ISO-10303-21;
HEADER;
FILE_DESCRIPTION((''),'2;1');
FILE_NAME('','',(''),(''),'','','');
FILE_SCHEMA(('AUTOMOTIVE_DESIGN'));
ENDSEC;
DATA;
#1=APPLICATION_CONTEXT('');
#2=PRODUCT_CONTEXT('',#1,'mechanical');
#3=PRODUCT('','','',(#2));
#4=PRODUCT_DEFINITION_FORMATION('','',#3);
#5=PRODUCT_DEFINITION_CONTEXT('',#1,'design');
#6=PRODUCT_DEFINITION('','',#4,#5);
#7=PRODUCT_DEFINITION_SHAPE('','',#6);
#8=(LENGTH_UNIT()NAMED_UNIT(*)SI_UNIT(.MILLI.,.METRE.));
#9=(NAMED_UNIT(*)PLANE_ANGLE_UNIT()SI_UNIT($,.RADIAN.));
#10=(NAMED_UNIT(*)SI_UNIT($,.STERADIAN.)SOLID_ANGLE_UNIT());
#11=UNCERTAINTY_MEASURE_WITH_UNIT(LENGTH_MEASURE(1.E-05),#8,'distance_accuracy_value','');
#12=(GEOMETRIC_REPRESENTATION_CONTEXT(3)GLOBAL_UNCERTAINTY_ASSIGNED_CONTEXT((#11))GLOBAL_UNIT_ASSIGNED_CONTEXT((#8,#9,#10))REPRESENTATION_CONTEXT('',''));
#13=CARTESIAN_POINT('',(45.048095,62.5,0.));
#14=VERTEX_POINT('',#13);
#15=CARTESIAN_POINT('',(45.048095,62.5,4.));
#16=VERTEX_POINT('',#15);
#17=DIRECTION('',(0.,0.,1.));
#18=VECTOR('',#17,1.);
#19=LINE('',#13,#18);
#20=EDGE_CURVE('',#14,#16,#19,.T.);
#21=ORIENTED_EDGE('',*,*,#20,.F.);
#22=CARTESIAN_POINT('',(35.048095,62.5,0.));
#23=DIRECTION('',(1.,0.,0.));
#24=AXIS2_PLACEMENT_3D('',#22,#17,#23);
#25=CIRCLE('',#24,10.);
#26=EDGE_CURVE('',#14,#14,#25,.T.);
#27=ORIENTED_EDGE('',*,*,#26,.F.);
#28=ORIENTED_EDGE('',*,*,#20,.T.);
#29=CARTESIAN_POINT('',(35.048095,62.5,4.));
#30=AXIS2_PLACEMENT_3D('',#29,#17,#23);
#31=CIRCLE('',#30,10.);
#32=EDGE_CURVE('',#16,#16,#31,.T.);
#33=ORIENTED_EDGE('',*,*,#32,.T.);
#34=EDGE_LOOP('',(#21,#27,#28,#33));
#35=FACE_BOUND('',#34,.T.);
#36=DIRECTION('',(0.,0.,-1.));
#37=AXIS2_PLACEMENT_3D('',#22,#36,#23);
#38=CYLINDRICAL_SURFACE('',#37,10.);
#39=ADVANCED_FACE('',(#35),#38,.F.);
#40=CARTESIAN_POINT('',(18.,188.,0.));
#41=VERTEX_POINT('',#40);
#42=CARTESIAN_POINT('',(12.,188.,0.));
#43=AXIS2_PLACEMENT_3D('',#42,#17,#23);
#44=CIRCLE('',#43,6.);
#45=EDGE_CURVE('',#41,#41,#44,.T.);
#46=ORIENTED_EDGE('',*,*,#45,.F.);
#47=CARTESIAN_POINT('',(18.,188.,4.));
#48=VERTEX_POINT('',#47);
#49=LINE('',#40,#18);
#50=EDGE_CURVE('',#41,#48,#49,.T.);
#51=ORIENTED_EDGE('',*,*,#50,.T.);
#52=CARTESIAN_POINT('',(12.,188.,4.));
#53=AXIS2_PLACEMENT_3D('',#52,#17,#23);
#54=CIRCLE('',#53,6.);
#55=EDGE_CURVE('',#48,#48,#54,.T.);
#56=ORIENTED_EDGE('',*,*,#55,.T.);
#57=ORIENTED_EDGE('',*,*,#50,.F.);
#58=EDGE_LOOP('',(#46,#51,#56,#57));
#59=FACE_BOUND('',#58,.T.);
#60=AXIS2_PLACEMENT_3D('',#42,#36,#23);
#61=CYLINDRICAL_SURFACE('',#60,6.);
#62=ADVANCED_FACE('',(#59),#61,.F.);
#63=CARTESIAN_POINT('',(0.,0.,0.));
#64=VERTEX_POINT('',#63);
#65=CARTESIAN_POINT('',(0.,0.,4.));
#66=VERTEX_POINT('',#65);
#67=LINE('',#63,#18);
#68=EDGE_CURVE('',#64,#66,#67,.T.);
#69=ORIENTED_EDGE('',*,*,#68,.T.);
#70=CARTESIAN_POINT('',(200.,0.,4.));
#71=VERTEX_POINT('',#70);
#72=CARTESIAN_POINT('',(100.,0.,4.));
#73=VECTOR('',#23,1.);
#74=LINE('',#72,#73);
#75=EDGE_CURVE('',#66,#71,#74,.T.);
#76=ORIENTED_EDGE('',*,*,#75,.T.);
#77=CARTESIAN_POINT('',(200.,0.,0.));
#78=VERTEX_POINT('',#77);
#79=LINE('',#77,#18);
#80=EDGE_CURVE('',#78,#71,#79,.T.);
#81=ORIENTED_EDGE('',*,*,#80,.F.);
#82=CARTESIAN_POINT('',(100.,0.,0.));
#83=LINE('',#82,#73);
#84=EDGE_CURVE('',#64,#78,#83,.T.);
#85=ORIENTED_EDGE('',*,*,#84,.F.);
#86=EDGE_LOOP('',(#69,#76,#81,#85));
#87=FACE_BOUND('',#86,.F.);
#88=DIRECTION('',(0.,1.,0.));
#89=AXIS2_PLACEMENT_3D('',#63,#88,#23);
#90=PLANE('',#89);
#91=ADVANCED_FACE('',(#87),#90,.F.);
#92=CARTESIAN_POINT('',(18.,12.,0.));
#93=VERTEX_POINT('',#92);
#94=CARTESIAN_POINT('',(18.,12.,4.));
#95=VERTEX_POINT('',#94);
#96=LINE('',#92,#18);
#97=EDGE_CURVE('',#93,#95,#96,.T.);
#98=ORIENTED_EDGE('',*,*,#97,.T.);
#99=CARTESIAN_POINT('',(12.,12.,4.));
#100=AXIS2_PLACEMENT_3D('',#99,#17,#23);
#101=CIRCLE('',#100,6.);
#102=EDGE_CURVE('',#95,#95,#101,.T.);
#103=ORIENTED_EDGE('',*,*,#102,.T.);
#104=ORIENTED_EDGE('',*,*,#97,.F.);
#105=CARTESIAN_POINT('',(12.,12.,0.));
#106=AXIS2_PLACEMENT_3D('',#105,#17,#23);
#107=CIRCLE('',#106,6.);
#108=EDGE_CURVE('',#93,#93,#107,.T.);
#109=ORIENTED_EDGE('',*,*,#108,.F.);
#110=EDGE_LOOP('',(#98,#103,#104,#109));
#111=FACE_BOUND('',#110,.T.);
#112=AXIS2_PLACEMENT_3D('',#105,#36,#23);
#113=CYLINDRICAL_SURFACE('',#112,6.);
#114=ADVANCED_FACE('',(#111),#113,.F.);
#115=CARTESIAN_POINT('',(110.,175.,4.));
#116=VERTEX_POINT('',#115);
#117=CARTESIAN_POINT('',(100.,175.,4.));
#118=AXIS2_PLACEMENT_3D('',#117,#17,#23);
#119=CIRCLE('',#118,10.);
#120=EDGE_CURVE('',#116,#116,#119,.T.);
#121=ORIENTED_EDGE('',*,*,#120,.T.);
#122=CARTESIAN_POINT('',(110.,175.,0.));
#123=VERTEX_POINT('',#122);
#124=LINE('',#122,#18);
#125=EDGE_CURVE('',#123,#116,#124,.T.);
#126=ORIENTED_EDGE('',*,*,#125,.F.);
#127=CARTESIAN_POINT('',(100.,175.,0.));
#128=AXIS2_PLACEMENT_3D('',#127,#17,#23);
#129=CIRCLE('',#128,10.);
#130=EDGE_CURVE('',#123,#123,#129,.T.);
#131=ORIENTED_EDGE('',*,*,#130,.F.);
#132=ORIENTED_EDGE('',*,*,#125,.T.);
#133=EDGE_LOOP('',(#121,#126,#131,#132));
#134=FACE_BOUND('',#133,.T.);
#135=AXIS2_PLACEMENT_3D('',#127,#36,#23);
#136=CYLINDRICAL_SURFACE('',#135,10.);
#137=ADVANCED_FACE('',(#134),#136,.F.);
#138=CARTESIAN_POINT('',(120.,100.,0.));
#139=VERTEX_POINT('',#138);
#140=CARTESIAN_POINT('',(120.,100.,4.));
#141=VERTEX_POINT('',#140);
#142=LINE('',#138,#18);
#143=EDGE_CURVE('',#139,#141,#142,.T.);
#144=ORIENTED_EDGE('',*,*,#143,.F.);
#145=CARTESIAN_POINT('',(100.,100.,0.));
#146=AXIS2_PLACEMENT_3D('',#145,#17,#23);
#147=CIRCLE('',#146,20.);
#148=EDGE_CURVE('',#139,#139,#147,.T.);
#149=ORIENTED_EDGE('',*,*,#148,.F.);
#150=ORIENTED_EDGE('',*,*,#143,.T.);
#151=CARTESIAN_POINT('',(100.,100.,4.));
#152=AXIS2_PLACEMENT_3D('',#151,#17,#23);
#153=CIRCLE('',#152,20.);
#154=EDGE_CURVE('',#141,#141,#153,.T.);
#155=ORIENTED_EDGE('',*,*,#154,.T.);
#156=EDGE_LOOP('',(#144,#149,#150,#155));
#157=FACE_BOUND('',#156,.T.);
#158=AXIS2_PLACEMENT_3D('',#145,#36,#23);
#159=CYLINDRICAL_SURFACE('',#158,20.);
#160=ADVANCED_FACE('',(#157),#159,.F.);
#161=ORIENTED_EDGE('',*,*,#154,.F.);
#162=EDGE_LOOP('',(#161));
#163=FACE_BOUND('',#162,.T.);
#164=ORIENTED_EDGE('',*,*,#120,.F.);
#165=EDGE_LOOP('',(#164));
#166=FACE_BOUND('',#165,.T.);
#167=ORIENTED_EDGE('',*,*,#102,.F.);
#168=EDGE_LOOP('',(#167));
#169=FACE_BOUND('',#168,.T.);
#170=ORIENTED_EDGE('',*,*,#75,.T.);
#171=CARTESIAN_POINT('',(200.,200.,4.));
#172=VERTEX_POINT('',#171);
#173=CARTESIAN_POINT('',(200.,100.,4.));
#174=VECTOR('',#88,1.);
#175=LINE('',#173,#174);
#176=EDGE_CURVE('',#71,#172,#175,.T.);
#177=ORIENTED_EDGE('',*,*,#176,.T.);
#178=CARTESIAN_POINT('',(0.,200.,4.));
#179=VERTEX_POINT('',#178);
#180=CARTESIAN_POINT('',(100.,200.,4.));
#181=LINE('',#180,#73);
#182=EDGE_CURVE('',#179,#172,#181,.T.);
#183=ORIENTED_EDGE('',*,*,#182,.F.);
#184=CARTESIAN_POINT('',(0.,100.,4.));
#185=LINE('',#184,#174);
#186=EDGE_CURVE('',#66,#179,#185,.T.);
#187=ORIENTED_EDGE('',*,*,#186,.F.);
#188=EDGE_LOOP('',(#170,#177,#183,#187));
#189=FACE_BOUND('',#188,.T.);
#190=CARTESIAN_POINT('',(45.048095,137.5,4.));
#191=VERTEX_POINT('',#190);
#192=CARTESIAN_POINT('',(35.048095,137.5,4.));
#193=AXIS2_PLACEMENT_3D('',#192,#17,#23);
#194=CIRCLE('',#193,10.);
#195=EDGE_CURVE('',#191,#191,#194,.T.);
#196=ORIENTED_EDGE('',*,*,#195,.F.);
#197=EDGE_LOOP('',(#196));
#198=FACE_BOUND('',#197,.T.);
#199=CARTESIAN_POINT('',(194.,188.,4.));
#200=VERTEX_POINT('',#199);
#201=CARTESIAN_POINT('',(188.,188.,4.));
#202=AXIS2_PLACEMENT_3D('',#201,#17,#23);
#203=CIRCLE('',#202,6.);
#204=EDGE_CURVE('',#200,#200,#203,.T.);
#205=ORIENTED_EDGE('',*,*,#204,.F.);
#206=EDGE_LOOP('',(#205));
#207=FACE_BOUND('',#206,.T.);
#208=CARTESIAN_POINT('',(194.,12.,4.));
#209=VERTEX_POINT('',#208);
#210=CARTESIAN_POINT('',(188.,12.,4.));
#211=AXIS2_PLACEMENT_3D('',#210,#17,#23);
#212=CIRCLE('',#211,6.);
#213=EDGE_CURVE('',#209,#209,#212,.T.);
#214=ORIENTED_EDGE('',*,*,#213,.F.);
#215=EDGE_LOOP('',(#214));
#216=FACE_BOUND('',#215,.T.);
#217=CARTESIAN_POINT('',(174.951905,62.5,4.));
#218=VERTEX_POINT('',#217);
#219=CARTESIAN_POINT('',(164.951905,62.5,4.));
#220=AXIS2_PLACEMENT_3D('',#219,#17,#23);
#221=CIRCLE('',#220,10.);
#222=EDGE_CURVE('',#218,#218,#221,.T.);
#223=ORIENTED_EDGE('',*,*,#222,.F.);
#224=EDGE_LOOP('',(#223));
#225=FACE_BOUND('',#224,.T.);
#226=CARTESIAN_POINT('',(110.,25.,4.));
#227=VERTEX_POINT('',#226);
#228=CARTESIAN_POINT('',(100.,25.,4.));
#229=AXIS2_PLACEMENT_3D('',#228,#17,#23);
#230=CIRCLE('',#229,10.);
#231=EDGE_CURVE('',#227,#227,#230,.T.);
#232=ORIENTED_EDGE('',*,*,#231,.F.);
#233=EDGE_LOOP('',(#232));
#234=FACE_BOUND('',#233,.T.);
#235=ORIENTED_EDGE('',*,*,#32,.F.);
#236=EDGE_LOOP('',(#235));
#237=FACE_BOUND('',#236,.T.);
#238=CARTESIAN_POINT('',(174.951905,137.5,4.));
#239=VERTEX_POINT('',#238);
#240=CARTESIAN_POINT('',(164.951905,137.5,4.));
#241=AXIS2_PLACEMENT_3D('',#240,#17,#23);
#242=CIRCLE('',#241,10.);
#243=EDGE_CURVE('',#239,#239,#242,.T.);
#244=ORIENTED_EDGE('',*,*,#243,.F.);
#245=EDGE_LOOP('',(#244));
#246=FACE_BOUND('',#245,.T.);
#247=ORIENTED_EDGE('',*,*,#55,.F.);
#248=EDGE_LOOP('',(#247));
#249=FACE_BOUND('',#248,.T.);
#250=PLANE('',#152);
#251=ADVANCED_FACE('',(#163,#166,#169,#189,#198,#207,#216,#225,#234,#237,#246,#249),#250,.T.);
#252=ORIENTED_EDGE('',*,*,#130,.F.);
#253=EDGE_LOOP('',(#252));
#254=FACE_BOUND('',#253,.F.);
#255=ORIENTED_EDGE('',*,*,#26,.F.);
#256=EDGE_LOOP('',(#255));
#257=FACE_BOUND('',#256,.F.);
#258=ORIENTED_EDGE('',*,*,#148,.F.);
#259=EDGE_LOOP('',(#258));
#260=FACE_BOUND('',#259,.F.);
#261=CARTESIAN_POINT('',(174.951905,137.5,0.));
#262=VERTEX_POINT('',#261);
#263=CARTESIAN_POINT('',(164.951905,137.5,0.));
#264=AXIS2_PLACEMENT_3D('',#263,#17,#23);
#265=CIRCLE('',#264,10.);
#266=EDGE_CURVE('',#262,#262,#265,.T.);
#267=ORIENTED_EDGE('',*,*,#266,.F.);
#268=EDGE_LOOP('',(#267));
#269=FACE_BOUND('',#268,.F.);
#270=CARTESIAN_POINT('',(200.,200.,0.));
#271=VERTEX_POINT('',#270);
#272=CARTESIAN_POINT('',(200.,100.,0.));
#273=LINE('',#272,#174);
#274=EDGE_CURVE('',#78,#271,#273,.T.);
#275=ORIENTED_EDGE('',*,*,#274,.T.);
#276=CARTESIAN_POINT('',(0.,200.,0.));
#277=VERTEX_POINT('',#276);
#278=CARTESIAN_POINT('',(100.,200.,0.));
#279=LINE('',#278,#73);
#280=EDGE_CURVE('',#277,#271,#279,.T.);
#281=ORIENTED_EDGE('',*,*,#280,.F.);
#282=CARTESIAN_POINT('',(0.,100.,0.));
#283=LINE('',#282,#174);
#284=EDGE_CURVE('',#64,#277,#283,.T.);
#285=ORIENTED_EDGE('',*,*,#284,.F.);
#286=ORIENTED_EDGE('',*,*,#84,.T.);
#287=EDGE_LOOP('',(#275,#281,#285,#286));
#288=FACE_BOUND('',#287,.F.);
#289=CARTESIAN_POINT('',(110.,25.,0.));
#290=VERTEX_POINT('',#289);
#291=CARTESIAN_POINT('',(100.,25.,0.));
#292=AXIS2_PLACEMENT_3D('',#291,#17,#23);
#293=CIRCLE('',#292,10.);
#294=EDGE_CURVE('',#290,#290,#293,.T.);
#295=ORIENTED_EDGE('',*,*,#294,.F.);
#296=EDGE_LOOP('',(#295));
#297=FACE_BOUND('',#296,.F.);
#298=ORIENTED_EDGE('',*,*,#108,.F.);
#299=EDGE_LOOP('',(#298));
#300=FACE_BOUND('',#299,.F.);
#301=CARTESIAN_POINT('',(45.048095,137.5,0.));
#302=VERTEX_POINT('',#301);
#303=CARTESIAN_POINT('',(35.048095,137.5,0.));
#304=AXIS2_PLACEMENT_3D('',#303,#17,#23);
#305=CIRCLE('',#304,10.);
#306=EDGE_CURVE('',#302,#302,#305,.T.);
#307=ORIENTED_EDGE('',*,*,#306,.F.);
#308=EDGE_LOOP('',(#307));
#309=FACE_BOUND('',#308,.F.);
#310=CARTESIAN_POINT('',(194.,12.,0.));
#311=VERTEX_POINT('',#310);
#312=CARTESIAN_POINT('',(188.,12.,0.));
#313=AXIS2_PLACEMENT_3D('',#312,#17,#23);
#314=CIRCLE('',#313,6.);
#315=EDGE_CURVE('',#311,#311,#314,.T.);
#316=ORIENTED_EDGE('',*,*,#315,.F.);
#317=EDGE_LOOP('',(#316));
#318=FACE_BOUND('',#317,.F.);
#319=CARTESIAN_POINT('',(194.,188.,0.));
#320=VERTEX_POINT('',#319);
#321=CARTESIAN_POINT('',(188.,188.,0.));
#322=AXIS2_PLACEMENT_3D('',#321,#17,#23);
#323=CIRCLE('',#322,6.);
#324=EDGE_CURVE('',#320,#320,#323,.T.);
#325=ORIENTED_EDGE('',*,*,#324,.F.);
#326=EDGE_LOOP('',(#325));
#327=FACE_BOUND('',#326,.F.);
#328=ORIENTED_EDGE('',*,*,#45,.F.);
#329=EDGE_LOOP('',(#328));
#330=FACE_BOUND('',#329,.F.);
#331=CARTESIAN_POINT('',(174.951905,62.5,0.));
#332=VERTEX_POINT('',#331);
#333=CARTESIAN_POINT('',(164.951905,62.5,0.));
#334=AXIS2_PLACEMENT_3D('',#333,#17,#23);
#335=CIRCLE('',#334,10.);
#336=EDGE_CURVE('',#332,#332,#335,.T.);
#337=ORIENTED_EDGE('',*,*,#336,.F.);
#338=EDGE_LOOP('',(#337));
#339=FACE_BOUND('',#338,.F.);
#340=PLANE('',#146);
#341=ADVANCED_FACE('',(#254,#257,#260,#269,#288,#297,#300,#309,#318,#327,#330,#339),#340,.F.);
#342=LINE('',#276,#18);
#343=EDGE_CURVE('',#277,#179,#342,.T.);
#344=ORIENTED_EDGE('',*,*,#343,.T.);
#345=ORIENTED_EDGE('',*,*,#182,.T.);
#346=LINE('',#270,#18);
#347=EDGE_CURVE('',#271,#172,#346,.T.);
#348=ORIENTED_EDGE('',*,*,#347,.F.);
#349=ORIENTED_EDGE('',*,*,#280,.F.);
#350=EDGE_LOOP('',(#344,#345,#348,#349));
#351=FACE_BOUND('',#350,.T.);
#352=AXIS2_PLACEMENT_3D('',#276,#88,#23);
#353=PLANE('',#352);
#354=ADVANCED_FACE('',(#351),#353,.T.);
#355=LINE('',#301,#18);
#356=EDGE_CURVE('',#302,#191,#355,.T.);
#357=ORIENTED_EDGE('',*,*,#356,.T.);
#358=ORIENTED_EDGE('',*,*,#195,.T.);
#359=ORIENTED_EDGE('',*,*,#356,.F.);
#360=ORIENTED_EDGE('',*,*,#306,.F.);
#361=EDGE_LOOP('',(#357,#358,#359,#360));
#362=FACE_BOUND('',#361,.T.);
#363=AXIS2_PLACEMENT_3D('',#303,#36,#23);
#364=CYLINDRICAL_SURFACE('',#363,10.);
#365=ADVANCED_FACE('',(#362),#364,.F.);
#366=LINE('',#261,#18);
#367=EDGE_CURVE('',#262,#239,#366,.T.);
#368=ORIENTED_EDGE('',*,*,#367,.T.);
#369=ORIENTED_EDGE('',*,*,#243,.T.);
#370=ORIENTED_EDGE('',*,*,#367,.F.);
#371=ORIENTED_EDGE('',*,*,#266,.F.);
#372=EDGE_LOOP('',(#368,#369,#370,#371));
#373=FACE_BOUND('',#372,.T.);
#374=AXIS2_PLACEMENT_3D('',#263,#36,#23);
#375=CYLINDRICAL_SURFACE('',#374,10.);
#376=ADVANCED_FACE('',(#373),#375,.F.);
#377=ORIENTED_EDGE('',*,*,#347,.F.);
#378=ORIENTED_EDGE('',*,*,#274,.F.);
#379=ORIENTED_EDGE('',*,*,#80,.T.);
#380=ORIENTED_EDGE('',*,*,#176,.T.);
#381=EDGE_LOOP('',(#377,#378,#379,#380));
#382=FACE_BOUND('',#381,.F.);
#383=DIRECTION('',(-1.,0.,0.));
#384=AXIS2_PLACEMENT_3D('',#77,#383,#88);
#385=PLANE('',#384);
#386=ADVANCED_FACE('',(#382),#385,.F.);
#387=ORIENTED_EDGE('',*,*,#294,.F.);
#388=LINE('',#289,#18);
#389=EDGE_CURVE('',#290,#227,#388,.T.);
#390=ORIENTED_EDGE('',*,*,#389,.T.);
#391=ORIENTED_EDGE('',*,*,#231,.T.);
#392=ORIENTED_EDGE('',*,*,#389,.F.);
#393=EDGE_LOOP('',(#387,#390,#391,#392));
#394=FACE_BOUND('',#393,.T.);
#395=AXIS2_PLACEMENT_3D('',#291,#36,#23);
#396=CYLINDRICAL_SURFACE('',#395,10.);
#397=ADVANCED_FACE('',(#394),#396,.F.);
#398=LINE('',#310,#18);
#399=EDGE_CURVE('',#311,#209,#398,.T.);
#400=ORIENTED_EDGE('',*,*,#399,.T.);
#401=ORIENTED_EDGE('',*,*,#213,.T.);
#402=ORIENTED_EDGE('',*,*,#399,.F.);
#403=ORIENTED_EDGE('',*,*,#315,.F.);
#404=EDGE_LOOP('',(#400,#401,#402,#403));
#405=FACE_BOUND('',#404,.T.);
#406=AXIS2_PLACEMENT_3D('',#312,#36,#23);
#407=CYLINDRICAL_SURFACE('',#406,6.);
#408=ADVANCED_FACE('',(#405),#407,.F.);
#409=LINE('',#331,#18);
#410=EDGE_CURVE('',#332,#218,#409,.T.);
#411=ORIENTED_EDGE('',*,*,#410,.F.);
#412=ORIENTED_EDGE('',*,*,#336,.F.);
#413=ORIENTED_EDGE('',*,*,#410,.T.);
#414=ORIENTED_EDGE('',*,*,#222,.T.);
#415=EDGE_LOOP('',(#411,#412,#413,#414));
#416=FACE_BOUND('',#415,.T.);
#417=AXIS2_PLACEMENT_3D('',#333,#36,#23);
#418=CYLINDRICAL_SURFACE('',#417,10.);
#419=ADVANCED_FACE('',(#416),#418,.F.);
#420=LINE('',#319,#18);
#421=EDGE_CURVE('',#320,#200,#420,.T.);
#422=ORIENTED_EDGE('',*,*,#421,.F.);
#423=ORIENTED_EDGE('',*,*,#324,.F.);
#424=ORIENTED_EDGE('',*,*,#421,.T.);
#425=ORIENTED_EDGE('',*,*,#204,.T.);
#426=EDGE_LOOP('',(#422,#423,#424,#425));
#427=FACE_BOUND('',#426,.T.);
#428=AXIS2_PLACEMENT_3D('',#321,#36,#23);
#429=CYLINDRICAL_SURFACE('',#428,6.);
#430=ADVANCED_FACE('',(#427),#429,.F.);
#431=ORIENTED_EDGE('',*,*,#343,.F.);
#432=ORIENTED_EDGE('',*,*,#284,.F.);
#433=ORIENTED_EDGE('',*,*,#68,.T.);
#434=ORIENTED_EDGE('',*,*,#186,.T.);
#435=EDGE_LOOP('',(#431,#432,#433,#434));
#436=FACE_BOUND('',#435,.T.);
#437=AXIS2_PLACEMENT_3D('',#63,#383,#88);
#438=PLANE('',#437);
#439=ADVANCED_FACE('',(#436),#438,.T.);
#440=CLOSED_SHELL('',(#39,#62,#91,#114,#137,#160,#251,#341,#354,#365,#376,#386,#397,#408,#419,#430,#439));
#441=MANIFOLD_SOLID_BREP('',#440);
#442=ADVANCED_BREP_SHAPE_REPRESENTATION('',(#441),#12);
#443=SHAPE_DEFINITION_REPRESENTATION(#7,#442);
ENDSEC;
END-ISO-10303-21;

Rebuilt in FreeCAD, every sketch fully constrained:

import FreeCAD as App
import Part
import Sketcher

doc = App.newDocument("Part")
body = doc.addObject("PartDesign::Body", "Body")

# Sketch on XY plane
sketch1 = body.newObject("Sketcher::SketchObject", "Sketch")
sketch1.AttachmentSupport = (doc.getObject("XY_Plane"), [""])
sketch1.MapMode = "FlatFace"
sketch1.addGeometry([
    Part.LineSegment(App.Vector(0, 200, 0), App.Vector(0, 0, 0)),  # 0
    Part.LineSegment(App.Vector(0, 0, 0), App.Vector(200, 0, 0)),  # 1
    Part.LineSegment(App.Vector(200, 0, 0), App.Vector(200, 200, 0)),  # 2
    Part.LineSegment(App.Vector(200, 200, 0), App.Vector(0, 200, 0)),  # 3
    Part.Circle(App.Vector(12, 12, 0), App.Vector(0, 0, 1), 6),  # 4
    Part.Circle(App.Vector(35, 62, 0), App.Vector(0, 0, 1), 10),  # 5
    Part.Circle(App.Vector(100, 25, 0), App.Vector(0, 0, 1), 10),  # 6
    Part.Circle(App.Vector(188, 12, 0), App.Vector(0, 0, 1), 6),  # 7
    Part.Circle(App.Vector(165, 62, 0), App.Vector(0, 0, 1), 10),  # 8
    Part.Circle(App.Vector(35, 138, 0), App.Vector(0, 0, 1), 10),  # 9
    Part.Circle(App.Vector(12, 188, 0), App.Vector(0, 0, 1), 6),  # 10
    Part.Circle(App.Vector(100, 100, 0), App.Vector(0, 0, 1), 20),  # 11
    Part.Circle(App.Vector(165, 138, 0), App.Vector(0, 0, 1), 10),  # 12
    Part.Circle(App.Vector(100, 175, 0), App.Vector(0, 0, 1), 10),  # 13
    Part.Circle(App.Vector(188, 188, 0), App.Vector(0, 0, 1), 6),  # 14
], False)
sketch1.addConstraint([
    Sketcher.Constraint("Coincident", 0, 2, 1, 1),
    Sketcher.Constraint("Coincident", 1, 2, 2, 1),
    Sketcher.Constraint("Coincident", 2, 2, 3, 1),
    Sketcher.Constraint("Coincident", 3, 2, 0, 1),
    Sketcher.Constraint("Vertical", 0),
    Sketcher.Constraint("Horizontal", 1),
    Sketcher.Constraint("Vertical", 2),
    Sketcher.Constraint("Horizontal", 3),
    Sketcher.Constraint("Coincident", 0, 2, -1, 1),
    Sketcher.Constraint("Equal", 5, 6),
    Sketcher.Constraint("Equal", 4, 7),
    Sketcher.Constraint("Equal", 6, 8),
    Sketcher.Constraint("Equal", 8, 9),
    Sketcher.Constraint("Equal", 7, 10),
    Sketcher.Constraint("Equal", 9, 12),
    Sketcher.Constraint("Equal", 12, 13),
    Sketcher.Constraint("Equal", 10, 14),
    Sketcher.Constraint("Horizontal", 4, 3, 7, 3),
    Sketcher.Constraint("Horizontal", 5, 3, 8, 3),
    Sketcher.Constraint("Horizontal", 9, 3, 12, 3),
    Sketcher.Constraint("Horizontal", 10, 3, 14, 3),
    Sketcher.Constraint("Vertical", 5, 3, 9, 3),
    Sketcher.Constraint("Vertical", 4, 3, 10, 3),
    Sketcher.Constraint("Vertical", 6, 3, 11, 3),
    Sketcher.Constraint("Vertical", 8, 3, 12, 3),
    Sketcher.Constraint("Vertical", 11, 3, 13, 3),
    Sketcher.Constraint("Vertical", 7, 3, 14, 3),
    Sketcher.Constraint("Equal", 3, 0),
    Sketcher.Constraint("Diameter", 4, 12.0),
    Sketcher.Constraint("Diameter", 5, 20.0),
    Sketcher.Constraint("Diameter", 11, 40.0),
    Sketcher.Constraint("DistanceX", 1, 1, 1, 2, 200.0),
    Sketcher.Constraint("DistanceX", -1, 1, 4, 3, 12.0),
    Sketcher.Constraint("DistanceY", -1, 1, 4, 3, 12.0),
    Sketcher.Constraint("DistanceX", -1, 1, 6, 3, 100.0),
    Sketcher.Constraint("DistanceY", -1, 1, 6, 3, 25.0),
    Sketcher.Constraint("DistanceX", -1, 1, 7, 3, 188.0),
    Sketcher.Constraint("DistanceY", -1, 1, 10, 3, 188.0),
    Sketcher.Constraint("DistanceY", -1, 1, 11, 3, 100.0),
    Sketcher.Constraint("DistanceY", -1, 1, 13, 3, 175.0),
    Sketcher.Constraint("DistanceY", 5, 3, 9, 3, 75.0),
    Sketcher.Constraint("DistanceY", -1, 1, 5, 3, 62.5),
    Sketcher.Constraint("DistanceX", 5, 3, 8, 3, 129.90381),
    Sketcher.Constraint("DistanceX", -1, 1, 5, 3, 35.048095),
])
pad1 = body.newObject("PartDesign::Pad", "Pad")
pad1.Profile = sketch1
pad1.Length = 4

doc.recompute()
